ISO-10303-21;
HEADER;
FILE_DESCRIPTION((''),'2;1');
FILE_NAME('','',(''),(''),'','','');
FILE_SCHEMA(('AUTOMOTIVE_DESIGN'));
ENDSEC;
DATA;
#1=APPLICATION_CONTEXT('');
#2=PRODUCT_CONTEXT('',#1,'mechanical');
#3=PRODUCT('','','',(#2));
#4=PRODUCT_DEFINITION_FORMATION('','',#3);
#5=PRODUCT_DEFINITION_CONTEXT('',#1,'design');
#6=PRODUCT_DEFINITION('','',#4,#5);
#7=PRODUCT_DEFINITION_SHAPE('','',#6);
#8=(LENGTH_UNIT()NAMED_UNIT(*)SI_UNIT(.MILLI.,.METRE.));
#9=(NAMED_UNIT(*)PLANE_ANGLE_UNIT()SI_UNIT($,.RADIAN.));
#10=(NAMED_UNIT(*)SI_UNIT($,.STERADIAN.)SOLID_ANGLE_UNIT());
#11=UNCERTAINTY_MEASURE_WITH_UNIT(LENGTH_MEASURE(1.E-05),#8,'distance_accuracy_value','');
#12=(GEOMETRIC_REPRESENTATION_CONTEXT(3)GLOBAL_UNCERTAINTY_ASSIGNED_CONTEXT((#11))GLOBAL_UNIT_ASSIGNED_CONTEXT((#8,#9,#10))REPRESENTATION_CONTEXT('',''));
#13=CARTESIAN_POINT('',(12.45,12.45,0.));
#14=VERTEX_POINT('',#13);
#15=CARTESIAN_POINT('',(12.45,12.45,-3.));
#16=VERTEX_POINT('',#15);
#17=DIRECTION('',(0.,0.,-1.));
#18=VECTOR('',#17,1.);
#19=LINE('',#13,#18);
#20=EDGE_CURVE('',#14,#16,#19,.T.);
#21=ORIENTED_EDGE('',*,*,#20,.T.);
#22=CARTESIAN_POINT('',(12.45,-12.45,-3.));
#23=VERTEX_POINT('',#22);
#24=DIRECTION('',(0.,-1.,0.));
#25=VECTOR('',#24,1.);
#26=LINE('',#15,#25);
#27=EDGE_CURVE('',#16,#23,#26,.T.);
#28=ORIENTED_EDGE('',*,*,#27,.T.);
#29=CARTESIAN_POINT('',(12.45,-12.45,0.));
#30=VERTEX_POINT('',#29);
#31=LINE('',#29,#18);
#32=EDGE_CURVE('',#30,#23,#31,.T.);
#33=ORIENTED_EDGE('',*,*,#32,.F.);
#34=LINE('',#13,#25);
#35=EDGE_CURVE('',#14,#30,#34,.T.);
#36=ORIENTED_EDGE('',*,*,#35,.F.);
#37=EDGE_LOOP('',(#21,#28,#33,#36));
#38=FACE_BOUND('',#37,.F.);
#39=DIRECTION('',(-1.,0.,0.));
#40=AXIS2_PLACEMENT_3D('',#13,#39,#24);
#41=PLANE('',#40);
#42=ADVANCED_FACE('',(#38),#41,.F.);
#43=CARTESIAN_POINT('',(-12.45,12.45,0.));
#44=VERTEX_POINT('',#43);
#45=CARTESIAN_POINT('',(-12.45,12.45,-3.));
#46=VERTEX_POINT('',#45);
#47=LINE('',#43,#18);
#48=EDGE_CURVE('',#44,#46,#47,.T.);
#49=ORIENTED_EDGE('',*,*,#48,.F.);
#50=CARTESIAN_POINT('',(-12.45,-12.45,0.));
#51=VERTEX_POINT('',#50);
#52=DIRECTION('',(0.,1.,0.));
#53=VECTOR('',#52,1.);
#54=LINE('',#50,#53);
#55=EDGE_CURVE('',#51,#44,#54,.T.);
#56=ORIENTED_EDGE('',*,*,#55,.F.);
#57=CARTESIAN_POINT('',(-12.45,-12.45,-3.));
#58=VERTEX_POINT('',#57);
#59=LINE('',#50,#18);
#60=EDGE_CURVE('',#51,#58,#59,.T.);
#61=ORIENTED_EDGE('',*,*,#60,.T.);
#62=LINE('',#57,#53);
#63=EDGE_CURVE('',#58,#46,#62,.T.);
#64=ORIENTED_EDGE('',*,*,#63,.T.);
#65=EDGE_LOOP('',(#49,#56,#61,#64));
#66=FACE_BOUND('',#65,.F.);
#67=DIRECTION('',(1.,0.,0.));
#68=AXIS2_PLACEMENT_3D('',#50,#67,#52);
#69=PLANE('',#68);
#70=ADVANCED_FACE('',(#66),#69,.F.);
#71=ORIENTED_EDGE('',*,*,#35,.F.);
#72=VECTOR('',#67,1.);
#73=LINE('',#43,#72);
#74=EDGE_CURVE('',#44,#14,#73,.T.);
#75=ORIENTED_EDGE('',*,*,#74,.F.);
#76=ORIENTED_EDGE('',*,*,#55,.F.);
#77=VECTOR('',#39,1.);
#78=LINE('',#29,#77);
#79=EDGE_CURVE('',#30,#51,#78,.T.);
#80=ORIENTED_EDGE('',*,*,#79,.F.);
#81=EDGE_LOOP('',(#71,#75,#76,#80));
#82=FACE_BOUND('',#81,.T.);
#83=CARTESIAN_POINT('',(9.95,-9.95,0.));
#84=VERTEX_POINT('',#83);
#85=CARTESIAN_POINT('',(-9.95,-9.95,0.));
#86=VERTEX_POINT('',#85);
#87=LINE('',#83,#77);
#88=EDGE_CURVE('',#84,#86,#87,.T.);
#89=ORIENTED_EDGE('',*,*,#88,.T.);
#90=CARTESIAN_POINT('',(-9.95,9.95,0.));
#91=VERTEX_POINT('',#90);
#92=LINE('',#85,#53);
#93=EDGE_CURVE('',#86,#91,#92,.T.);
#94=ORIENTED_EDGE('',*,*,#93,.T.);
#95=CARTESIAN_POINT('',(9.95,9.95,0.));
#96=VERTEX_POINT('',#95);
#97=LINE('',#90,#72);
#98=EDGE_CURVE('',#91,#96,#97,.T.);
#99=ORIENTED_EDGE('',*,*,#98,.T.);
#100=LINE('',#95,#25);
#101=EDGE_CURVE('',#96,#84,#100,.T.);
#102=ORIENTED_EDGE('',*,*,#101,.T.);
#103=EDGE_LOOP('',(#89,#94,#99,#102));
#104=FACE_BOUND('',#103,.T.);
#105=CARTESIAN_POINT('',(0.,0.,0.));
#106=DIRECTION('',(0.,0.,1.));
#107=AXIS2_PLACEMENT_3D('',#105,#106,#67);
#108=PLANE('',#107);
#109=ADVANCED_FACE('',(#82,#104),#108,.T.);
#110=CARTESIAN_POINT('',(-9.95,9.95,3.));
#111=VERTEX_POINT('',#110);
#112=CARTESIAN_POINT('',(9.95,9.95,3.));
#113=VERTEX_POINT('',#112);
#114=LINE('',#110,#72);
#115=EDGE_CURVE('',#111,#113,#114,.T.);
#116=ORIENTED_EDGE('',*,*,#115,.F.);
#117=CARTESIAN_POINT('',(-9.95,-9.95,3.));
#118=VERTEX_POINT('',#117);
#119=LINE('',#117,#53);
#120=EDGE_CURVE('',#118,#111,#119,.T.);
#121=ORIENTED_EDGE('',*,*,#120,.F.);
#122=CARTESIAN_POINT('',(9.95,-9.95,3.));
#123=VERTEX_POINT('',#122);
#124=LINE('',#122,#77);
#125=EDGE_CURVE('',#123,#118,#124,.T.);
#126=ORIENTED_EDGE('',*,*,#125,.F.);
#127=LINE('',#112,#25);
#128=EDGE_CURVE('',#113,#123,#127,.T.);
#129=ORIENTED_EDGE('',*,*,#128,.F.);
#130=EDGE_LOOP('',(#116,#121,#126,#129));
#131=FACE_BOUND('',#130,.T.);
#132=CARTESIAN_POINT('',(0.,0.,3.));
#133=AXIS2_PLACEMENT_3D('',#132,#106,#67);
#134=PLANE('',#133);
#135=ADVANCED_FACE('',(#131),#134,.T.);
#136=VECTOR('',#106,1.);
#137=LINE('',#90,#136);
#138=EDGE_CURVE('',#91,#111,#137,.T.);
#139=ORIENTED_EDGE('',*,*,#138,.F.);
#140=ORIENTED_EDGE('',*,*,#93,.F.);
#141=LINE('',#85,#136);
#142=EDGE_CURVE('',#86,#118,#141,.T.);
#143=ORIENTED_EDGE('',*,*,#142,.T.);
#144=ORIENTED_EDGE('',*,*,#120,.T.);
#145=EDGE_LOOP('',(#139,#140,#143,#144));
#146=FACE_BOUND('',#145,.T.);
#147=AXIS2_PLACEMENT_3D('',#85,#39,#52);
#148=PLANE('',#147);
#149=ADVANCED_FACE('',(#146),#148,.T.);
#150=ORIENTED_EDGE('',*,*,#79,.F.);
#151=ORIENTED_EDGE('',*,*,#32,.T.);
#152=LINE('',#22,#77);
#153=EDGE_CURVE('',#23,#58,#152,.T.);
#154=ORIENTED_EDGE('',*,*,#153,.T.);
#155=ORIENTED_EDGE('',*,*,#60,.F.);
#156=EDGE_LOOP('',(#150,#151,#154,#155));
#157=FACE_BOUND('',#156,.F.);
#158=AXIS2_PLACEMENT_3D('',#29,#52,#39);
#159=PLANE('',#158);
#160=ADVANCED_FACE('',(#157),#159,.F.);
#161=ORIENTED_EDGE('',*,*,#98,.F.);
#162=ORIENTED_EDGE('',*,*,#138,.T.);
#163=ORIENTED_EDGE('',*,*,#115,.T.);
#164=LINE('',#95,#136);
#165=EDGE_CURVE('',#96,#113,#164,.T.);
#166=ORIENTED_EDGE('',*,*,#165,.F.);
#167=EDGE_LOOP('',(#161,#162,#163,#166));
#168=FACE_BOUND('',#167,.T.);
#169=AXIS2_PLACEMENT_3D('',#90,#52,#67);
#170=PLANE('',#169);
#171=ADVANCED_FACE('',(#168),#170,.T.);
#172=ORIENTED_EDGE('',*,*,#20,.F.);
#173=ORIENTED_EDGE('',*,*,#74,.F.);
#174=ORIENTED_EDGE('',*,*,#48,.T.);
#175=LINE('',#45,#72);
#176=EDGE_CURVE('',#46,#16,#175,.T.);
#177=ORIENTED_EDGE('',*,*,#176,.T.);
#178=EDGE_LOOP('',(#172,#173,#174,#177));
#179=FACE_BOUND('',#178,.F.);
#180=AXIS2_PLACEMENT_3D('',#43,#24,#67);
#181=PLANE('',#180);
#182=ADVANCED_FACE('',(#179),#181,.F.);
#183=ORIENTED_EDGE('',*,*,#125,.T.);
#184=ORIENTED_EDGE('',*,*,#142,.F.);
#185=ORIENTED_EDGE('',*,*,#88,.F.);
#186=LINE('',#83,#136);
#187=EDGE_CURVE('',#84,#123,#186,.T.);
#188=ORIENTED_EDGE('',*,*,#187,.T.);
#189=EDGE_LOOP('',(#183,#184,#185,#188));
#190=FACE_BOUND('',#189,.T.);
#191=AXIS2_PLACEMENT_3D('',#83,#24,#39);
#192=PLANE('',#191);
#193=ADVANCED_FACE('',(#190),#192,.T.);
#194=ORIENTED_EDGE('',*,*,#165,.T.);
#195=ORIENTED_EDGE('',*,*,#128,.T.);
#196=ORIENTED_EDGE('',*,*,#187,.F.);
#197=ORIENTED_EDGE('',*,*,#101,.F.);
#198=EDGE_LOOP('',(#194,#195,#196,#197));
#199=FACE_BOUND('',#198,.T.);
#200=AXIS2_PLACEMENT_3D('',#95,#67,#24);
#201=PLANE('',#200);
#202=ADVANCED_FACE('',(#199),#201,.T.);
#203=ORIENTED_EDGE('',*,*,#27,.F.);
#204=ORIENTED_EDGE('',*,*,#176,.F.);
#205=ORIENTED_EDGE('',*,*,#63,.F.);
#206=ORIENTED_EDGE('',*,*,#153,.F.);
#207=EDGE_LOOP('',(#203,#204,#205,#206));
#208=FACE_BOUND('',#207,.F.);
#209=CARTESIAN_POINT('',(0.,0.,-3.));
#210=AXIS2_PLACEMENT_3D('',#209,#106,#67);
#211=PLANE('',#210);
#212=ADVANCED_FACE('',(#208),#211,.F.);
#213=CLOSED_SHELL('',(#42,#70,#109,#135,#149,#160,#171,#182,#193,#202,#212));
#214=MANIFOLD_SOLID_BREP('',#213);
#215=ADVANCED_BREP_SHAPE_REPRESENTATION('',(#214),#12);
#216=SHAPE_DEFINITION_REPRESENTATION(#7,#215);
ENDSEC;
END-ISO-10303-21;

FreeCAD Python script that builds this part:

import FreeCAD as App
import Part
import Sketcher
from FreeCAD import Vector


def add_polygon(sketch, points):
    """Adds a closed chain of lines whose ends are joined by coincident constraints."""
    first, n = sketch.GeometryCount, len(points)
    for a, b in zip(points, points[1:] + points[:1]):
        sketch.addGeometry(Part.LineSegment(App.Vector(*a, 0), App.Vector(*b, 0)), False)
    for i in range(n):
        sketch.addConstraint(Sketcher.Constraint("Coincident", first + i, 2, first + (i + 1) % n, 1))

doc = App.newDocument("Part")
body = doc.addObject("PartDesign::Body", "Body")

sketch1 = body.newObject("Sketcher::SketchObject", "Sketch")
sketch1.AttachmentSupport = (doc.getObject("XY_Plane"), [""])
sketch1.MapMode = "FlatFace"
add_polygon(sketch1, [(-10, -10), (10, -10), (10, 10), (-10, 10)])
sketch1.addConstraint(Sketcher.Constraint("Horizontal", 0))
sketch1.addConstraint(Sketcher.Constraint("Vertical", 1))
sketch1.addConstraint(Sketcher.Constraint("Horizontal", 2))
sketch1.addConstraint(Sketcher.Constraint("Vertical", 3))
sketch1.addConstraint(Sketcher.Constraint("Symmetric", 0, 2, 2, 2, -1, 1))
sketch1.addConstraint(Sketcher.Constraint("Equal", 2, 1))
sketch1.addConstraint(Sketcher.Constraint("DistanceX", 0, 1, 0, 2, 19.9))
pad1 = body.newObject("PartDesign::Pad", "Pad")
pad1.Profile = sketch1
pad1.Length = 3

sketch2 = body.newObject("Sketcher::SketchObject", "Sketch001")
sketch2.AttachmentSupport = (doc.getObject("XY_Plane"), [""])
sketch2.MapMode = "FlatFace"
add_polygon(sketch2, [(-12, -12), (12, -12), (12, 12), (-12, 12)])
sketch2.addConstraint(Sketcher.Constraint("Horizontal", 0))
sketch2.addConstraint(Sketcher.Constraint("Vertical", 1))
sketch2.addConstraint(Sketcher.Constraint("Horizontal", 2))
sketch2.addConstraint(Sketcher.Constraint("Vertical", 3))
sketch2.addConstraint(Sketcher.Constraint("Symmetric", 0, 2, 2, 2, -1, 1))
sketch2.addConstraint(Sketcher.Constraint("Equal", 2, 1))
sketch2.addConstraint(Sketcher.Constraint("DistanceX", 0, 1, 0, 2, 24.9))
pad2 = body.newObject("PartDesign::Pad", "Pad001")
pad2.Profile = sketch2
pad2.Length = 3
pad2.Reversed = True

doc.recompute()
